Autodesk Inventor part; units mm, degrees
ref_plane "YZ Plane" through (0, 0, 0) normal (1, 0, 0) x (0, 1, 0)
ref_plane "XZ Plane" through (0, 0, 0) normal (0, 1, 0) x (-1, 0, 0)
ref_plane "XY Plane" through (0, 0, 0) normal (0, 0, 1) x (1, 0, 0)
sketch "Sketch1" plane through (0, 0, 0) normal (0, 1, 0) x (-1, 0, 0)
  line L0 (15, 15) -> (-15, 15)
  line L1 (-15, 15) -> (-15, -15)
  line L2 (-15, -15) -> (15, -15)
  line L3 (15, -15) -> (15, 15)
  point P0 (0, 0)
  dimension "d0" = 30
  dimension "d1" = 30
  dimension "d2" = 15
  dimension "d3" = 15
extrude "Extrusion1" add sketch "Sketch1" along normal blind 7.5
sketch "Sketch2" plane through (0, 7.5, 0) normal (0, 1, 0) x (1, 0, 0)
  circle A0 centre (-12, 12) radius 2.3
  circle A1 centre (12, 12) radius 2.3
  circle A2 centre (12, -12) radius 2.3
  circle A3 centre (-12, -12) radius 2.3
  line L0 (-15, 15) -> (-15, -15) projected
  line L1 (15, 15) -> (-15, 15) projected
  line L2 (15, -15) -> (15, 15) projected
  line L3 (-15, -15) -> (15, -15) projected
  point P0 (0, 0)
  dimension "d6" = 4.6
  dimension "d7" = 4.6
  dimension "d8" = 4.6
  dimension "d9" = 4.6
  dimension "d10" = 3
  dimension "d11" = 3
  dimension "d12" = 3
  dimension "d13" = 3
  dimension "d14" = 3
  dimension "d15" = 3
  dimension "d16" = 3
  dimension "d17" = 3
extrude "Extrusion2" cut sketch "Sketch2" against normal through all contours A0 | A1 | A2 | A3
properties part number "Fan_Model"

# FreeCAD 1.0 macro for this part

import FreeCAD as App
import Part
import Sketcher
from FreeCAD import Vector

doc = App.newDocument("Part")
params = doc.addObject("Spreadsheet::Sheet", "Params")
for row, (alias, value) in enumerate([
    ("sketch1_width", "30 mm"),
    ("pad1_length", "7.5 mm"),
    ("sketch2_diameter", "4.6 mm"),
], start=1):
    params.set(f"A{row}", alias)
    params.set(f"B{row}", "=" + value)
    params.setAlias(f"B{row}", alias)

body = doc.addObject("PartDesign::Body", "Body")

# Sketch on XZ plane
sketch1 = body.newObject("Sketcher::SketchObject", "Sketch")
sketch1.AttachmentSupport = (doc.getObject("XZ_Plane"), [""])
sketch1.MapMode = "FlatFace"
sketch1.addGeometry([
    Part.LineSegment(Vector(-15, -15, 0), Vector(-15, 15, 0)),
    Part.LineSegment(Vector(-15, 15, 0), Vector(15, 15, 0)),
    Part.LineSegment(Vector(15, 15, 0), Vector(15, -15, 0)),
    Part.LineSegment(Vector(15, -15, 0), Vector(-15, -15, 0)),
], False)
sketch1.addConstraint([
    Sketcher.Constraint("Coincident", 0, 2, 1, 1),
    Sketcher.Constraint("Coincident", 1, 2, 2, 1),
    Sketcher.Constraint("Coincident", 2, 2, 3, 1),
    Sketcher.Constraint("Coincident", 3, 2, 0, 1),
    Sketcher.Constraint("Vertical", 0),
    Sketcher.Constraint("Horizontal", 1),
    Sketcher.Constraint("Vertical", 2),
    Sketcher.Constraint("Horizontal", 3),
    Sketcher.Constraint("Symmetric", 0, 2, 2, 2, -1, 1),
    Sketcher.Constraint("Equal", 3, 0),
    Sketcher.Constraint("DistanceX", 1, 1, 1, 2, 30.0),
])
sketch1.setExpression("Constraints[10]", "Params.sketch1_width")
pad1 = body.newObject("PartDesign::Pad", "Pad")
pad1.Profile = sketch1
pad1.setExpression("Length", "Params.pad1_length")
pad1.Reversed = True

# Sketch on XZ plane
sketch2 = body.newObject("Sketcher::SketchObject", "Sketch001")
sketch2.AttachmentSupport = (doc.getObject("XZ_Plane"), [""])
sketch2.MapMode = "FlatFace"
sketch2.AttachmentOffset = App.Placement(Vector(0, 0, -7.5), App.Rotation())
sketch2.addGeometry([
    Part.Circle(Vector(-12, -12, 0), Vector(0, 0, 1), 2.3),
    Part.Circle(Vector(12, -12, 0), Vector(0, 0, 1), 2.3),
    Part.Circle(Vector(12, 12, 0), Vector(0, 0, 1), 2.3),
    Part.Circle(Vector(-12, 12, 0), Vector(0, 0, 1), 2.3),
], False)
sketch2.addConstraint([
    Sketcher.Constraint("Equal", 0, 1),
    Sketcher.Constraint("Equal", 1, 2),
    Sketcher.Constraint("Equal", 2, 3),
    Sketcher.Constraint("Symmetric", 0, 3, 2, 3, -1, 1),
    Sketcher.Constraint("Symmetric", 1, 3, 3, 3, -1, 1),
    Sketcher.Constraint("Symmetric", 0, 3, 1, 3, -2),
    Sketcher.Constraint("Diameter", 0, 4.6),
    Sketcher.Constraint("DistanceX", 0, 3, -1, 1, 12.0),
    Sketcher.Constraint("DistanceY", 0, 3, -1, 1, 12.0),
])
sketch2.setExpression("Constraints[6]", "Params.sketch2_diameter")
pocket1 = body.newObject("PartDesign::Pocket", "Pocket")
pocket1.Profile = sketch2
pocket1.Type = "ThroughAll"
pocket1.Reversed = True

doc.recompute()
